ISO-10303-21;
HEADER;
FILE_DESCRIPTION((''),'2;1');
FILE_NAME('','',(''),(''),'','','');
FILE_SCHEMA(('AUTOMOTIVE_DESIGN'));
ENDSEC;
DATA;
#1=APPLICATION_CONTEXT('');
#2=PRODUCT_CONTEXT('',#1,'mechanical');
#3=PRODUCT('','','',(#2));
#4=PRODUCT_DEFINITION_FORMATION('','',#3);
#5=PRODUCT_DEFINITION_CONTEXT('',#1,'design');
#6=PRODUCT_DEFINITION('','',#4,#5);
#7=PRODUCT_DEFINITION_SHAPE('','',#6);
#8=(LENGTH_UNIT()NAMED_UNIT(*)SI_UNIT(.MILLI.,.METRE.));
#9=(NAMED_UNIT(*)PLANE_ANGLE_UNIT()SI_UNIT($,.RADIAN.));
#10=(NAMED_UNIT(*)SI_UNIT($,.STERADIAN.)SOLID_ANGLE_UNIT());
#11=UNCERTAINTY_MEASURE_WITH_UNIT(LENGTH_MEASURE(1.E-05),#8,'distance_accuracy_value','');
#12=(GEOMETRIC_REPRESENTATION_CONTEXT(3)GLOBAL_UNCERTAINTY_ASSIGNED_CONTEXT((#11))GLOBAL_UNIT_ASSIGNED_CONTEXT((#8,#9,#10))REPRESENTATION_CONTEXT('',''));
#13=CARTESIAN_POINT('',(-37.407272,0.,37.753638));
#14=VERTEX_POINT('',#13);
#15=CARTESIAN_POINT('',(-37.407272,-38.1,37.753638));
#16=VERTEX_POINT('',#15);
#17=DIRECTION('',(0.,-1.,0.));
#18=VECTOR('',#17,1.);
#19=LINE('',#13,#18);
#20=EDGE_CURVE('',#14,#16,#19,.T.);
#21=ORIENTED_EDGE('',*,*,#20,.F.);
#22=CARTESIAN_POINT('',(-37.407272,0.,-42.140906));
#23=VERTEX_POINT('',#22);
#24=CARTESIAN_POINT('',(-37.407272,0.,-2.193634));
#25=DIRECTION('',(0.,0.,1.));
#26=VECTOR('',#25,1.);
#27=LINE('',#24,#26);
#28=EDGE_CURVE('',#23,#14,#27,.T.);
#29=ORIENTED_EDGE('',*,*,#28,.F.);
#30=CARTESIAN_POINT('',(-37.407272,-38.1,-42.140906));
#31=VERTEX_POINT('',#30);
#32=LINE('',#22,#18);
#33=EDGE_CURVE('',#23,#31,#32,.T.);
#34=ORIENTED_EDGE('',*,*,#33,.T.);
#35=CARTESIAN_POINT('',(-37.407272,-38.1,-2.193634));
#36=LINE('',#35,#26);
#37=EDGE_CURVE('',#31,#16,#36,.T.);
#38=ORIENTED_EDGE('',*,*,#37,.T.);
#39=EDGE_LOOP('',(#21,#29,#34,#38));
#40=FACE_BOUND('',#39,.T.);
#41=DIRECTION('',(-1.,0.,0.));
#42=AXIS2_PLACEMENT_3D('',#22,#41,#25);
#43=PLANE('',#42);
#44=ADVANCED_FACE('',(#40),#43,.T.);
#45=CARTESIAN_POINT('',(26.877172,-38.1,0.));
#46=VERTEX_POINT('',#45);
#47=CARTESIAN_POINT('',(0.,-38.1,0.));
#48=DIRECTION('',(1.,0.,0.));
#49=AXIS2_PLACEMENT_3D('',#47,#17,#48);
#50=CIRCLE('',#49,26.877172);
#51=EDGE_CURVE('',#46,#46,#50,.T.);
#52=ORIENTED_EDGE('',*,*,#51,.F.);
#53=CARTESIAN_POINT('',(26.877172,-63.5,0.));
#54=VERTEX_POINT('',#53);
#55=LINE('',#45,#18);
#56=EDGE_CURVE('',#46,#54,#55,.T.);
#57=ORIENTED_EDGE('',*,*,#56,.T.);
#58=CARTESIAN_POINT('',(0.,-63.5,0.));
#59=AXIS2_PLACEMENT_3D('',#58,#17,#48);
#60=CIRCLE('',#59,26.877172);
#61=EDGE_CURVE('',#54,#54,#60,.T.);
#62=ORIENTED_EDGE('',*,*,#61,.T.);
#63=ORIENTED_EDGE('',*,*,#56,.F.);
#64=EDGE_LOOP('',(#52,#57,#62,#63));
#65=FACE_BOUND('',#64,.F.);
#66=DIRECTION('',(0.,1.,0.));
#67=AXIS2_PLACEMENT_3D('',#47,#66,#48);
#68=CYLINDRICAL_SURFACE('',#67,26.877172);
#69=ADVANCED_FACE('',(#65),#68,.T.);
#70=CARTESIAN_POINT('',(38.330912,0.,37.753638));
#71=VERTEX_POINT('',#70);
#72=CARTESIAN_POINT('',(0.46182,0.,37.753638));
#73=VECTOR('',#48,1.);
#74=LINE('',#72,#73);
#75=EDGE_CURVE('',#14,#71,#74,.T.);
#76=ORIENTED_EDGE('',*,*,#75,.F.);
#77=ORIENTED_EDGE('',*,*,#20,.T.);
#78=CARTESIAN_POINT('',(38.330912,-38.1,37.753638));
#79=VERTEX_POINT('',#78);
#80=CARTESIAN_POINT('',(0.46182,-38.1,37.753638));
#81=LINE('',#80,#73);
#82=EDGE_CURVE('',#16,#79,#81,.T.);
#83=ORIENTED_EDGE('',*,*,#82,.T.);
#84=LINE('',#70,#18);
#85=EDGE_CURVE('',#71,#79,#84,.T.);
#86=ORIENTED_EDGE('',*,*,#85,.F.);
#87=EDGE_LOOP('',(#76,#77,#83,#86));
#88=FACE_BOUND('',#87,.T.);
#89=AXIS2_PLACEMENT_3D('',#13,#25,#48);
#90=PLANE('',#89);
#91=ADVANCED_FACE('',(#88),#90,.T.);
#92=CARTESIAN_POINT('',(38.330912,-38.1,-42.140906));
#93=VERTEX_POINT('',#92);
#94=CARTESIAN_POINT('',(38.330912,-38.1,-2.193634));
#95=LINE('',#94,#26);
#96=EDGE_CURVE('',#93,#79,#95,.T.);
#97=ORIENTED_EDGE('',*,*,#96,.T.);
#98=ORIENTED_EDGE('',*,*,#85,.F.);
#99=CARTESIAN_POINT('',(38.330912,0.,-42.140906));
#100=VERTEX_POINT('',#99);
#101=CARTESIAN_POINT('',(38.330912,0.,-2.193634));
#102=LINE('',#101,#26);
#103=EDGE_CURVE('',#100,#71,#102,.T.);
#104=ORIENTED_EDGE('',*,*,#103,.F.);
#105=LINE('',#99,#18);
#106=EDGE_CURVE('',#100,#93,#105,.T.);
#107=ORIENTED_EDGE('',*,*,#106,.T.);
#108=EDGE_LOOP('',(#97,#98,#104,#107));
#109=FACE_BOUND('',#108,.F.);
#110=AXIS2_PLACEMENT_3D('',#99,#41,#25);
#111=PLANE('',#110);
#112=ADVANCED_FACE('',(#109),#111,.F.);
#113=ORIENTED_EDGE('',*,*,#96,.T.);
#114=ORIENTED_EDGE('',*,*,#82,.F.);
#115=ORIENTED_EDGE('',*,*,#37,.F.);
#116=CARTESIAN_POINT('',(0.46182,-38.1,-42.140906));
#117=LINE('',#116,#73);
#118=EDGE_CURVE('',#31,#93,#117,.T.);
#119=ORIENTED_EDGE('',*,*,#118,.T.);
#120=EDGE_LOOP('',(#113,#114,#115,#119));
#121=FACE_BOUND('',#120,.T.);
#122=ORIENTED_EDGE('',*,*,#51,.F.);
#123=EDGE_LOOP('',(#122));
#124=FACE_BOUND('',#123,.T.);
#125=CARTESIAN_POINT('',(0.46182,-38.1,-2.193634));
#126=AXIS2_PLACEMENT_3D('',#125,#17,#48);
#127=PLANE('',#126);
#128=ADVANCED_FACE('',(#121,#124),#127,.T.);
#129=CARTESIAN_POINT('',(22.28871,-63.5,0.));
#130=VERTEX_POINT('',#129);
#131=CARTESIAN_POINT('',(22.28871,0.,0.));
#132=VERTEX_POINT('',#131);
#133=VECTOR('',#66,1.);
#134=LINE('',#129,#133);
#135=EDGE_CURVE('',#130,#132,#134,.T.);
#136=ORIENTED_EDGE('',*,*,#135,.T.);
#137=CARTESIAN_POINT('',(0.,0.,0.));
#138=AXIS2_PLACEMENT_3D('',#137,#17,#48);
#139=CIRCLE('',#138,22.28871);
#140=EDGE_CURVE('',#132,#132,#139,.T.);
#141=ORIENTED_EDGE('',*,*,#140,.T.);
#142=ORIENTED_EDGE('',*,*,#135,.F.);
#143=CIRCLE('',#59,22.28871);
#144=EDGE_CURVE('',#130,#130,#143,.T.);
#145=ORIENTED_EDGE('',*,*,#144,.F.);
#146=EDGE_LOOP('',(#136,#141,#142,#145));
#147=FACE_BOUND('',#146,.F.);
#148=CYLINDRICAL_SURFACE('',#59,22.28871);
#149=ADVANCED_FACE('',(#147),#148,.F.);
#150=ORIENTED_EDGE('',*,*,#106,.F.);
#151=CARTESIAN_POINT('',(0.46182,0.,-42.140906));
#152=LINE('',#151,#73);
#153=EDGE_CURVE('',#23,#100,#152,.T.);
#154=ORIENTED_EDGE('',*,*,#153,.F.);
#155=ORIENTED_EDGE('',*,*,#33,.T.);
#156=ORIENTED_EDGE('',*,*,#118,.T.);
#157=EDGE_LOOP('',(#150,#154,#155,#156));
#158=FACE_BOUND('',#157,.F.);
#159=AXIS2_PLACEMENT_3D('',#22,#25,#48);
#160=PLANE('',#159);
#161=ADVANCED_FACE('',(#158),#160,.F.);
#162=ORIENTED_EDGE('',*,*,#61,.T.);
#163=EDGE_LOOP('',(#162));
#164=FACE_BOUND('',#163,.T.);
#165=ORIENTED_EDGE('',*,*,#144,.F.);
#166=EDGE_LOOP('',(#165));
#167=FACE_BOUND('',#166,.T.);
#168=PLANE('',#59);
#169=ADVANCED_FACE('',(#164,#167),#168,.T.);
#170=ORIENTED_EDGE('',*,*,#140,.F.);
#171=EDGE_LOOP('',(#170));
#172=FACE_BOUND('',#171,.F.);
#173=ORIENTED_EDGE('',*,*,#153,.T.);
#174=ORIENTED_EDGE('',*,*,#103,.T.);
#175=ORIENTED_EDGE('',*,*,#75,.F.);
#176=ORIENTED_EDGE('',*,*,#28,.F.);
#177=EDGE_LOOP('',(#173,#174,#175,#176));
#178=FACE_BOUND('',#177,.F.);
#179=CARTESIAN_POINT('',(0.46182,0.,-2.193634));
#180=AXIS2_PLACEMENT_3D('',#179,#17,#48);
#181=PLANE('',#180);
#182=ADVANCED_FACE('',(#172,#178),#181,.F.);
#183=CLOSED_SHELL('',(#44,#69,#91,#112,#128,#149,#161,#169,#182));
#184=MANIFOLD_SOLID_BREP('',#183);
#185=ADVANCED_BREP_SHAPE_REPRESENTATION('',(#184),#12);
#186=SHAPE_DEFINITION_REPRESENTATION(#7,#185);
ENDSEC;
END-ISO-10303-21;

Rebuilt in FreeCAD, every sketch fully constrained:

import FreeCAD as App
import Part
import Sketcher

V = App.Vector
Q = App.Units.Quantity


def add_polygon(sketch, points):
    """Adds a closed chain of lines whose ends are joined by coincident constraints."""
    first, n = sketch.GeometryCount, len(points)
    for a, b in zip(points, points[1:] + points[:1]):
        sketch.addGeometry(Part.LineSegment(App.Vector(*a, 0), App.Vector(*b, 0)), False)
    for i in range(n):
        sketch.addConstraint(Sketcher.Constraint("Coincident", first + i, 2, first + (i + 1) % n, 1))

doc = App.newDocument("Part")
params = doc.addObject("Spreadsheet::Sheet", "Params")
for row, (alias, value) in enumerate([
    ("pad1_length", "1.5 in"),
    ("pad2_length", "1 in"),
], start=1):
    params.set(f"A{row}", alias)
    params.set(f"B{row}", "=" + value)
    params.setAlias(f"B{row}", alias)

body = doc.addObject("PartDesign::Body", "Body")

# Sketch on XZ plane
sketch1 = body.newObject("Sketcher::SketchObject", "Sketch")
sketch1.AttachmentSupport = (doc.getObject("XZ_Plane"), [""])
sketch1.MapMode = "FlatFace"
add_polygon(sketch1, [(-37, 38), (-37, -42), (38, -42), (38, 38)])  # lines 0-3
sketch1.addConstraint([
    Sketcher.Constraint("Vertical", 0),
    Sketcher.Constraint("Horizontal", 1),
    Sketcher.Constraint("Vertical", 2),
    Sketcher.Constraint("Horizontal", 3),
    Sketcher.Constraint("DistanceX", 1, 1, 1, 2, Q("75.738185 mm")),
    Sketcher.Constraint("DistanceY", 0, 2, 0, 1, Q("79.894543 mm")),
    Sketcher.Constraint("DistanceX", 0, 2, -1, 1, Q("37.407272 mm")),
    Sketcher.Constraint("DistanceY", 0, 2, -1, 1, Q("42.140906 mm")),
])
pad1 = body.newObject("PartDesign::Pad", "Pad")
pad1.Profile = sketch1
pad1.setExpression("Length", "Params.pad1_length")

# Sketch on XZ plane
sketch2 = body.newObject("Sketcher::SketchObject", "Sketch001")
sketch2.AttachmentSupport = (doc.getObject("XZ_Plane"), [""])
sketch2.MapMode = "FlatFace"
sketch2.AttachmentOffset = App.Placement(V(0, 0, 1.5 * 25.4), App.Rotation())
sketch2.addGeometry(Part.Circle(V(0, 0, 0), V(0, 0, 1), 27), False)
sketch2.addConstraint([
    Sketcher.Constraint("Coincident", 0, 3, -1, 1),
    Sketcher.Constraint("Diameter", 0, Q("53.754344 mm")),
])
pad2 = body.newObject("PartDesign::Pad", "Pad001")
pad2.Profile = sketch2
pad2.setExpression("Length", "Params.pad2_length")

# Sketch on XZ plane
sketch3 = body.newObject("Sketcher::SketchObject", "Sketch002")
sketch3.AttachmentSupport = (doc.getObject("XZ_Plane"), [""])
sketch3.MapMode = "FlatFace"
sketch3.AttachmentOffset = App.Placement(V(0, 0, 2.5 * 25.4), App.Rotation())
sketch3.addGeometry(Part.Circle(V(0, 0, 0), V(0, 0, 1), 22), False)
sketch3.addConstraint([
    Sketcher.Constraint("Coincident", 0, 3, -1, 1),
    Sketcher.Constraint("Diameter", 0, Q("44.57742 mm")),
])
pocket1 = body.newObject("PartDesign::Pocket", "Pocket")
pocket1.Profile = sketch3
pocket1.Type = "ThroughAll"

doc.recompute()
